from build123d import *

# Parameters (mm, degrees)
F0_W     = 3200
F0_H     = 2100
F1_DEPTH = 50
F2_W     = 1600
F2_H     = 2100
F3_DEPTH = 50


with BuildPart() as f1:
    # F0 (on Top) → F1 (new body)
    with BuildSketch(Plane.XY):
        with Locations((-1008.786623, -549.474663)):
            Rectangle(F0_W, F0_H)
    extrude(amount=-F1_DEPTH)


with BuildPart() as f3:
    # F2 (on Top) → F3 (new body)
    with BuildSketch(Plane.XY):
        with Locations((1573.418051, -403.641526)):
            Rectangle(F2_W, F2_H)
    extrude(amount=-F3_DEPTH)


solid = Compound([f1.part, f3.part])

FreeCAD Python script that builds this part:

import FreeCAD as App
import Part
import Sketcher
from FreeCAD import Vector
Q = App.Units.Quantity

doc = App.newDocument("Part")
body = doc.addObject("PartDesign::Body", "Body")

sketch1 = doc.addObject("Sketcher::SketchObject", "Sketch")
body.addObject(sketch1)
sketch1.AttachmentSupport = (doc.XY_Plane, [""])
sketch1.MapMode = "FlatFace"
sketch1.addGeometry([
    Part.LineSegment(Vector(-2608.786623, 500.525337, 0), Vector(-2608.786623, -1599.474663, 0)),
    Part.LineSegment(Vector(-2608.786623, -1599.474663, 0), Vector(591.213377, -1599.474663, 0)),
    Part.LineSegment(Vector(591.213377, -1599.474663, 0), Vector(591.213377, 500.525337, 0)),
    Part.LineSegment(Vector(591.213377, 500.525337, 0), Vector(-2608.786623, 500.525337, 0)),
], False)
sketch1.addConstraint([
    Sketcher.Constraint("Coincident", 0, 2, 1, 1),
    Sketcher.Constraint("Coincident", 1, 2, 2, 1),
    Sketcher.Constraint("Coincident", 2, 2, 3, 1),
    Sketcher.Constraint("Coincident", 3, 2, 0, 1),
    Sketcher.Constraint("Vertical", 0),
    Sketcher.Constraint("Horizontal", 1),
    Sketcher.Constraint("Vertical", 2),
    Sketcher.Constraint("Horizontal", 3),
    Sketcher.Constraint("DistanceX", 1, 1, 1, 2, Q("3200 mm")),
    Sketcher.Constraint("DistanceY", 0, 2, 0, 1, Q("2100 mm")),
    Sketcher.Constraint("DistanceX", 0, 2, -1, 1, Q("2608.786623 mm")),
    Sketcher.Constraint("DistanceY", 0, 2, -1, 1, Q("1599.474663 mm")),
])
pad1 = doc.addObject("PartDesign::Pad", "Pad")
body.addObject(pad1)
pad1.Profile = sketch1
pad1.Length = 50
pad1.Reversed = True
body2 = doc.addObject("PartDesign::Body", "Body001")

sketch2 = doc.addObject("Sketcher::SketchObject", "Sketch001")
body2.addObject(sketch2)
sketch2.AttachmentSupport = (doc.getObject("XY_Plane001"), [""])
sketch2.MapMode = "FlatFace"
sketch2.addGeometry([
    Part.LineSegment(Vector(773.418051, 646.358474, 0), Vector(773.418051, -1453.641526, 0)),
    Part.LineSegment(Vector(773.418051, -1453.641526, 0), Vector(2373.418051, -1453.641526, 0)),
    Part.LineSegment(Vector(2373.418051, -1453.641526, 0), Vector(2373.418051, 646.358474, 0)),
    Part.LineSegment(Vector(2373.418051, 646.358474, 0), Vector(773.418051, 646.358474, 0)),
], False)
sketch2.addConstraint([
    Sketcher.Constraint("Coincident", 0, 2, 1, 1),
    Sketcher.Constraint("Coincident", 1, 2, 2, 1),
    Sketcher.Constraint("Coincident", 2, 2, 3, 1),
    Sketcher.Constraint("Coincident", 3, 2, 0, 1),
    Sketcher.Constraint("Vertical", 0),
    Sketcher.Constraint("Horizontal", 1),
    Sketcher.Constraint("Vertical", 2),
    Sketcher.Constraint("Horizontal", 3),
    Sketcher.Constraint("DistanceX", 1, 1, 1, 2, Q("1600 mm")),
    Sketcher.Constraint("DistanceY", 0, 2, 0, 1, Q("2100 mm")),
    Sketcher.Constraint("DistanceX", -1, 1, 0, 2, Q("773.418051 mm")),
    Sketcher.Constraint("DistanceY", 0, 2, -1, 1, Q("1453.641526 mm")),
])
pad2 = doc.addObject("PartDesign::Pad", "Pad001")
body2.addObject(pad2)
pad2.Profile = sketch2
pad2.Length = 50
pad2.Reversed = True

doc.recompute()
